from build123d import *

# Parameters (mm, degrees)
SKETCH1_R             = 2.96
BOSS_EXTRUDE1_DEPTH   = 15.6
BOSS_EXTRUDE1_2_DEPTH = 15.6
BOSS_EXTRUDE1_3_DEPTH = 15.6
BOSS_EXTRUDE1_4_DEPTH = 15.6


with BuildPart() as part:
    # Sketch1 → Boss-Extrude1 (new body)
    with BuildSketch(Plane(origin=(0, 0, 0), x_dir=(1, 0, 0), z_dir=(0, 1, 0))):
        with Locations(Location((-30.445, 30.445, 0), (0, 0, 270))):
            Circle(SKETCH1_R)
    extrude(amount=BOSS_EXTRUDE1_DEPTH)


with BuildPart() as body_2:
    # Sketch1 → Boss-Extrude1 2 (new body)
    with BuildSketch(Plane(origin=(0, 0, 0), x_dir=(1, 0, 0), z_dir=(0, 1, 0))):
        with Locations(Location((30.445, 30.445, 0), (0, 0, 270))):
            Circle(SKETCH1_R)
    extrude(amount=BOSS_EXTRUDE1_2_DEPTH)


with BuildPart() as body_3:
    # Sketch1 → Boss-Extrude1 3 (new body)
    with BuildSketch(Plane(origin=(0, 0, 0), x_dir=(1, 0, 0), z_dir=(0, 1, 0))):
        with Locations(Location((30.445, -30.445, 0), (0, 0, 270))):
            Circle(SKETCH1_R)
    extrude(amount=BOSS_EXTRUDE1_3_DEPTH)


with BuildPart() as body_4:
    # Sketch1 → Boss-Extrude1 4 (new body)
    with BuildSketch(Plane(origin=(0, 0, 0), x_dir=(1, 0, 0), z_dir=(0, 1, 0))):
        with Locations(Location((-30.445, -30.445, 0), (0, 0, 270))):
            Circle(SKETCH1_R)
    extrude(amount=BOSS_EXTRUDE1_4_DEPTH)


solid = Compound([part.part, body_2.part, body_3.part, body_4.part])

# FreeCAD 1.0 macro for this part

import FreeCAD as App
import Part
import Sketcher

V = App.Vector
Q = App.Units.Quantity

doc = App.newDocument("Part")
params = doc.addObject("Spreadsheet::Sheet", "Params")
for row, (alias, value) in enumerate([
    ("sketch1_diameter", "5.92 mm"),
    ("pad1_length", "15.6 mm"),
    ("sketch2_diameter", "5.92 mm"),
    ("pad2_length", "15.6 mm"),
    ("sketch3_diameter", "5.92 mm"),
    ("pad3_length", "15.6 mm"),
    ("sketch4_diameter", "5.92 mm"),
    ("pad4_length", "15.6 mm"),
], start=1):
    params.set(f"A{row}", alias)
    params.set(f"B{row}", "=" + value)
    params.setAlias(f"B{row}", alias)

body = doc.addObject("PartDesign::Body", "Body")

sketch1 = body.newObject("Sketcher::SketchObject", "Sketch")
sketch1.AttachmentSupport = (doc.getObject("XZ_Plane"), [""])
sketch1.MapMode = "FlatFace"
sketch1.addGeometry(Part.Circle(V(-30.4, -30.4, 0), V(0, 0, 1), 3), False)
sketch1.addConstraint([
    Sketcher.Constraint("Diameter", 0, Q("5.92 mm")),
    Sketcher.Constraint("DistanceX", 0, 3, -1, 1, Q("30.445 mm")),
    Sketcher.Constraint("DistanceY", 0, 3, -1, 1, Q("30.445 mm")),
])
sketch1.setExpression("Constraints[0]", "Params.sketch1_diameter")
pad1 = body.newObject("PartDesign::Pad", "Pad")
pad1.Profile = sketch1
pad1.setExpression("Length", "Params.pad1_length")
pad1.Reversed = True
body2 = doc.addObject("PartDesign::Body", "Body001")

sketch2 = body2.newObject("Sketcher::SketchObject", "Sketch001")
sketch2.AttachmentSupport = (doc.getObject("XZ_Plane001"), [""])
sketch2.MapMode = "FlatFace"
sketch2.addGeometry(Part.Circle(V(30.4, -30.4, 0), V(0, 0, 1), 3), False)
sketch2.addConstraint([
    Sketcher.Constraint("Diameter", 0, Q("5.92 mm")),
    Sketcher.Constraint("DistanceX", -1, 1, 0, 3, Q("30.445 mm")),
    Sketcher.Constraint("DistanceY", 0, 3, -1, 1, Q("30.445 mm")),
])
sketch2.setExpression("Constraints[0]", "Params.sketch2_diameter")
pad2 = body2.newObject("PartDesign::Pad", "Pad001")
pad2.Profile = sketch2
pad2.setExpression("Length", "Params.pad2_length")
pad2.Reversed = True
body3 = doc.addObject("PartDesign::Body", "Body002")

sketch3 = body3.newObject("Sketcher::SketchObject", "Sketch002")
sketch3.AttachmentSupport = (doc.getObject("XZ_Plane002"), [""])
sketch3.MapMode = "FlatFace"
sketch3.addGeometry(Part.Circle(V(30.4, 30.4, 0), V(0, 0, 1), 3), False)
sketch3.addConstraint([
    Sketcher.Constraint("Diameter", 0, Q("5.92 mm")),
    Sketcher.Constraint("DistanceX", -1, 1, 0, 3, Q("30.445 mm")),
    Sketcher.Constraint("DistanceY", -1, 1, 0, 3, Q("30.445 mm")),
])
sketch3.setExpression("Constraints[0]", "Params.sketch3_diameter")
pad3 = body3.newObject("PartDesign::Pad", "Pad002")
pad3.Profile = sketch3
pad3.setExpression("Length", "Params.pad3_length")
pad3.Reversed = True
body4 = doc.addObject("PartDesign::Body", "Body003")

sketch4 = body4.newObject("Sketcher::SketchObject", "Sketch003")
sketch4.AttachmentSupport = (doc.getObject("XZ_Plane003"), [""])
sketch4.MapMode = "FlatFace"
sketch4.addGeometry(Part.Circle(V(-30.4, 30.4, 0), V(0, 0, 1), 3), False)
sketch4.addConstraint([
    Sketcher.Constraint("Diameter", 0, Q("5.92 mm")),
    Sketcher.Constraint("DistanceX", 0, 3, -1, 1, Q("30.445 mm")),
    Sketcher.Constraint("DistanceY", -1, 1, 0, 3, Q("30.445 mm")),
])
sketch4.setExpression("Constraints[0]", "Params.sketch4_diameter")
pad4 = body4.newObject("PartDesign::Pad", "Pad003")
pad4.Profile = sketch4
pad4.setExpression("Length", "Params.pad4_length")
pad4.Reversed = True

doc.recompute()
